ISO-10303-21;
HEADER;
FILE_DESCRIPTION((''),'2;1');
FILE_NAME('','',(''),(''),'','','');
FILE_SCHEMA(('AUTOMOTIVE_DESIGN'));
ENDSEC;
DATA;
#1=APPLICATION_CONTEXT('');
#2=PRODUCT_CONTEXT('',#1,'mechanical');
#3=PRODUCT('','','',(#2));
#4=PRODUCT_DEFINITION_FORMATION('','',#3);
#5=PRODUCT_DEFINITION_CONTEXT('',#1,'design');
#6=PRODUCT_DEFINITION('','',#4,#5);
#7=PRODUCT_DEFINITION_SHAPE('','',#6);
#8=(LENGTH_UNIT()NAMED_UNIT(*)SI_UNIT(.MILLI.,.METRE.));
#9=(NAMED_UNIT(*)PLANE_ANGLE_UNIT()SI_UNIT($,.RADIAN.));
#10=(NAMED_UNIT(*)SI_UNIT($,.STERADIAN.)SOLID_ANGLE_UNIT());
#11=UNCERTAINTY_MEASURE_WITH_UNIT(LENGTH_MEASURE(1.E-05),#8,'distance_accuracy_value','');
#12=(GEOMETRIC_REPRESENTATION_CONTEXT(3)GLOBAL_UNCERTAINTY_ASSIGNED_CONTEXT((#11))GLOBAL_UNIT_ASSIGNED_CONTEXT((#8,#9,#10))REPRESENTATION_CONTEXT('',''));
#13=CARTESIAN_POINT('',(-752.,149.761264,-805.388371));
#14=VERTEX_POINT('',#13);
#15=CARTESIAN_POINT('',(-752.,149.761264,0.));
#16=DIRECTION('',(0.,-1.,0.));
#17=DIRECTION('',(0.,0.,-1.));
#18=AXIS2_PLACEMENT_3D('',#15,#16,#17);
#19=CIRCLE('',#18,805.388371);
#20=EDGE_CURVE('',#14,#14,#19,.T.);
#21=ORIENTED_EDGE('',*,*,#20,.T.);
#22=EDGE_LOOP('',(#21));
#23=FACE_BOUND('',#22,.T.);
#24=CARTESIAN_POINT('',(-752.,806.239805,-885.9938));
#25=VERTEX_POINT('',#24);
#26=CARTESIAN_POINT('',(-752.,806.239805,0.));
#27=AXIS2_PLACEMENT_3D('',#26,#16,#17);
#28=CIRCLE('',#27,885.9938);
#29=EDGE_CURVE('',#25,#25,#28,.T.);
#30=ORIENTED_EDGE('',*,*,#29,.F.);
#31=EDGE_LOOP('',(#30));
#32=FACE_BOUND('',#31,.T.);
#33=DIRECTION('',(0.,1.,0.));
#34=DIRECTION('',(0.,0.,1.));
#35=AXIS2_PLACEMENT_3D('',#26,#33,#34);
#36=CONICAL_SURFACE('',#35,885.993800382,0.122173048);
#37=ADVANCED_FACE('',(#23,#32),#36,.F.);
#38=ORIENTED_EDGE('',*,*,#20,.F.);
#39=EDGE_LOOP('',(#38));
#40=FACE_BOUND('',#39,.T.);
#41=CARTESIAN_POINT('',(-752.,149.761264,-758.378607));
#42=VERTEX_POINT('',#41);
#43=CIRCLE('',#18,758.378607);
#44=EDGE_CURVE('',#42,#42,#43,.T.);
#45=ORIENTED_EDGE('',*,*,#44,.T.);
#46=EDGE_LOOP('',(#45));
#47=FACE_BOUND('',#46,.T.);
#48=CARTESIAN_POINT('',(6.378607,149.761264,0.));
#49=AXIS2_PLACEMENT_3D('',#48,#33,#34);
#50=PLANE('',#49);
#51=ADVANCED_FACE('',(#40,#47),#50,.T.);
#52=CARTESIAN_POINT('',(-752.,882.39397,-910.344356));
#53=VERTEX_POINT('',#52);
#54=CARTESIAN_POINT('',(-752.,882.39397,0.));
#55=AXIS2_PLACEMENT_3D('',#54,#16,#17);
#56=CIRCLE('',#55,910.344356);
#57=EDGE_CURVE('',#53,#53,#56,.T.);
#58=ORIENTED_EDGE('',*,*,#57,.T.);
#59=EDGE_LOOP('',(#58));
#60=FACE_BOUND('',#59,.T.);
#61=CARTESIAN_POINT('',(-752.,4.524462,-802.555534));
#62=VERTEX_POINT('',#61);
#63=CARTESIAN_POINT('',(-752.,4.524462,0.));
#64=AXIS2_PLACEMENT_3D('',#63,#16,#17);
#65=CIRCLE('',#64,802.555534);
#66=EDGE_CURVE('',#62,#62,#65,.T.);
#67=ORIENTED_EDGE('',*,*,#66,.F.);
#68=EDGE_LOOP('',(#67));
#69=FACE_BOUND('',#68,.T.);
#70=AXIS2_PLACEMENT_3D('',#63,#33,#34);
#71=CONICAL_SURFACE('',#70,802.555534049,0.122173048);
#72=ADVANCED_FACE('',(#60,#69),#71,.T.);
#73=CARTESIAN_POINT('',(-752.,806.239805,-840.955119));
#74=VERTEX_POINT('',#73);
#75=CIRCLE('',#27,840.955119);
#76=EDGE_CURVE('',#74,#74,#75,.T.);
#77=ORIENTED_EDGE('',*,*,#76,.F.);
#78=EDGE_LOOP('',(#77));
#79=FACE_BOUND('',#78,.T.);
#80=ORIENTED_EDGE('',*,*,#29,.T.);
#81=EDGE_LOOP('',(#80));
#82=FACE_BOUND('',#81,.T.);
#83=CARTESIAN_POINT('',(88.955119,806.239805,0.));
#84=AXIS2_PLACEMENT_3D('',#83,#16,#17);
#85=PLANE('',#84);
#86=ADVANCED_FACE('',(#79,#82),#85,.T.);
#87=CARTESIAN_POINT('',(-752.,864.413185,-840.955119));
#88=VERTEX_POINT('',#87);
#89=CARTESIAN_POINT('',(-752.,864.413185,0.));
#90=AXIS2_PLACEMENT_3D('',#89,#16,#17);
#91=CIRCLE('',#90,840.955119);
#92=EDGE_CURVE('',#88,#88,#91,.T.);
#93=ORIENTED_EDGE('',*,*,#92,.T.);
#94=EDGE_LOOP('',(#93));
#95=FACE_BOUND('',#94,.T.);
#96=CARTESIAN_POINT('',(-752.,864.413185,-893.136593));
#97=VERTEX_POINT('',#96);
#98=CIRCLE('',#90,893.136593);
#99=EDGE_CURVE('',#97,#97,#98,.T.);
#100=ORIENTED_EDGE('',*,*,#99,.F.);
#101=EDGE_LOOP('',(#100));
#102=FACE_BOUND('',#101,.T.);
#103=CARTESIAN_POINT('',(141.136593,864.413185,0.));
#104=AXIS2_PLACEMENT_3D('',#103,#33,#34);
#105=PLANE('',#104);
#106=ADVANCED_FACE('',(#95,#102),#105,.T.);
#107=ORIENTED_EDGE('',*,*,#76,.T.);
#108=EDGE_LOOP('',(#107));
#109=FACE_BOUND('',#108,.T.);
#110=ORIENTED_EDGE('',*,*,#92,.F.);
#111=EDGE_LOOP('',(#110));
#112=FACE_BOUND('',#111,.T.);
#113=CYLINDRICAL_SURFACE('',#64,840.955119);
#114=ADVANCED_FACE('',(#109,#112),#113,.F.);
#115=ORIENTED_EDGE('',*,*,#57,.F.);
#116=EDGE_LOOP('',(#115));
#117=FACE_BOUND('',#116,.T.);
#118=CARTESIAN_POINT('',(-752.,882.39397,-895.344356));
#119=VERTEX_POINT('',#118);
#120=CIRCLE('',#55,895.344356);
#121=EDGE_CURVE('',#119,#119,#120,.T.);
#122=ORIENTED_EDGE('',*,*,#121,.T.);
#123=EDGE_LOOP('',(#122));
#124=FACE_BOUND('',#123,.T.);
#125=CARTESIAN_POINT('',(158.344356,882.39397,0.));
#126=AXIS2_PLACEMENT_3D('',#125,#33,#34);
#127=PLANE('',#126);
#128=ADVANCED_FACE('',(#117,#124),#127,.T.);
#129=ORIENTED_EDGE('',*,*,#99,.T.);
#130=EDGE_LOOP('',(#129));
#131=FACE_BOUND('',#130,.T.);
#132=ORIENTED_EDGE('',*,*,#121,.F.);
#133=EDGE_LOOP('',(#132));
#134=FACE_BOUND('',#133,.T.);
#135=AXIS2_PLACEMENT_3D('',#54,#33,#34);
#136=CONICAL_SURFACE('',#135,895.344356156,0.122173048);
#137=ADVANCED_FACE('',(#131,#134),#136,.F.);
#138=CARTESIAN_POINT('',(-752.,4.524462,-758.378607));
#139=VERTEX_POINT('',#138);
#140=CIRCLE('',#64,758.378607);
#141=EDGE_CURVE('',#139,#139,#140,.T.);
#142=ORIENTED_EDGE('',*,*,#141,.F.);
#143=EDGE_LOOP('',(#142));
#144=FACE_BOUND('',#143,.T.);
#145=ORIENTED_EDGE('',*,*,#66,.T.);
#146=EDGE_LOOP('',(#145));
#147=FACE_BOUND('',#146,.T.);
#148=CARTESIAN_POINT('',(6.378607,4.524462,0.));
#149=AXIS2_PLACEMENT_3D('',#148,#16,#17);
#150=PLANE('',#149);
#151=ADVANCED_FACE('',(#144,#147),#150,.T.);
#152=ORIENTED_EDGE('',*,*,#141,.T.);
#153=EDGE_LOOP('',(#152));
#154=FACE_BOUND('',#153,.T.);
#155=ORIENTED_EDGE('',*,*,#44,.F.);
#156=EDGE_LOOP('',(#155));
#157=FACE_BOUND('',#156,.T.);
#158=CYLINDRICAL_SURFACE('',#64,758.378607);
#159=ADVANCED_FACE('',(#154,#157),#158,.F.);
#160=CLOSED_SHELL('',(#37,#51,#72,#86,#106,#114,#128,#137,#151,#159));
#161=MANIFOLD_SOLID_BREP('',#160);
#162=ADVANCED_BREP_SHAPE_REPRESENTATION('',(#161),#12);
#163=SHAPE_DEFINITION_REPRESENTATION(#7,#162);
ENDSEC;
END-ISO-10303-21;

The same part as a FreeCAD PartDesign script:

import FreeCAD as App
import Part
import Sketcher
from FreeCAD import Vector
Q = App.Units.Quantity

doc = App.newDocument("Part")
body = doc.addObject("PartDesign::Body", "Body")

sketch1 = body.newObject("Sketcher::SketchObject", "Sketch")
sketch1.AttachmentSupport = (doc.getObject("XY_Plane"), [""])
sketch1.MapMode = "FlatFace"
sketch1.addGeometry([
    Part.LineSegment(Vector(6, 5, 0), Vector(51, 5, 0)),
    Part.LineSegment(Vector(51, 5, 0), Vector(158, 882, 0)),
    Part.LineSegment(Vector(158, 882, 0), Vector(143, 882, 0)),
    Part.LineSegment(Vector(143, 882, 0), Vector(141, 864, 0)),
    Part.LineSegment(Vector(141, 864, 0), Vector(89, 864, 0)),
    Part.LineSegment(Vector(89, 864, 0), Vector(89, 806, 0)),
    Part.LineSegment(Vector(89, 806, 0), Vector(134, 806, 0)),
    Part.LineSegment(Vector(134, 806, 0), Vector(53, 150, 0)),
    Part.LineSegment(Vector(53, 150, 0), Vector(6, 150, 0)),
    Part.LineSegment(Vector(6, 150, 0), Vector(6, 5, 0)),
], False)
sketch1.addGeometry(Part.LineSegment(Vector(-752, 5, 0), Vector(-752, 882, 0)), True)
sketch1.addConstraint([
    Sketcher.Constraint("Coincident", 0, 2, 1, 1),
    Sketcher.Constraint("Coincident", 1, 2, 2, 1),
    Sketcher.Constraint("Coincident", 2, 2, 3, 1),
    Sketcher.Constraint("Coincident", 3, 2, 4, 1),
    Sketcher.Constraint("Coincident", 4, 2, 5, 1),
    Sketcher.Constraint("Coincident", 5, 2, 6, 1),
    Sketcher.Constraint("Coincident", 6, 2, 7, 1),
    Sketcher.Constraint("Coincident", 7, 2, 8, 1),
    Sketcher.Constraint("Coincident", 8, 2, 9, 1),
    Sketcher.Constraint("Coincident", 9, 2, 0, 1),
    Sketcher.Constraint("Horizontal", 0),
    Sketcher.Constraint("Horizontal", 2),
    Sketcher.Constraint("Horizontal", 4),
    Sketcher.Constraint("Vertical", 5),
    Sketcher.Constraint("Horizontal", 6),
    Sketcher.Constraint("Horizontal", 8),
    Sketcher.Constraint("Vertical", 9),
    Sketcher.Constraint("Vertical", 10),
    Sketcher.Constraint("Parallel", 1, 3),
    Sketcher.Constraint("Parallel", 3, 7),
    Sketcher.Constraint("Horizontal", 9, 2, 10, 1),
    Sketcher.Constraint("Horizontal", 2, 2, 10, 2),
    Sketcher.Constraint("DistanceX", 2, 2, 2, 1, 15.0),
    Sketcher.Constraint("Angle", 1, Q("83 deg")),
    Sketcher.Constraint("DistanceX", 10, 1, -1, 1, 752.0),
    Sketcher.Constraint("DistanceY", 9, 2, 9, 1, 145.236802),
    Sketcher.Constraint("DistanceX", 6, 1, 6, 2, 45.038682),
    Sketcher.Constraint("DistanceY", 5, 2, 5, 1, 58.17338),
    Sketcher.Constraint("DistanceY", 10, 1, 10, 2, 877.869508),
    Sketcher.Constraint("DistanceX", -1, 1, 6, 2, 133.9938),
    Sketcher.Constraint("Distance", 7, 661.40858),
    Sketcher.Constraint("DistanceX", 0, 1, 0, 2, 44.176927),
    Sketcher.Constraint("DistanceX", 4, 2, 4, 1, 52.181475),
    Sketcher.Constraint("DistanceY", -1, 1, 0, 2, 4.524462),
])
revolution = body.newObject("PartDesign::Revolution", "Revolution")
revolution.Profile = sketch1
revolution.ReferenceAxis = (sketch1, ["Axis0"])
revolution.Angle = 360

doc.recompute()
